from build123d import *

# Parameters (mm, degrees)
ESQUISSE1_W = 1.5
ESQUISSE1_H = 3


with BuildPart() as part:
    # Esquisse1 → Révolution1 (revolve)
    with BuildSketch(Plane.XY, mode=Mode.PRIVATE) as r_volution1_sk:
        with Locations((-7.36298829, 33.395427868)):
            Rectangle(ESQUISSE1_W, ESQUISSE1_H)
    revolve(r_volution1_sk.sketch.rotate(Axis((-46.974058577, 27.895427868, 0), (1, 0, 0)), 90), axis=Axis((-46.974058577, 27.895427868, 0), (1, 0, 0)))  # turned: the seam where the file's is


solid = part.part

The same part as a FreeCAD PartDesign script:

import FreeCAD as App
import Part
import Sketcher
Q = App.Units.Quantity

doc = App.newDocument("Part")
body = doc.addObject("PartDesign::Body", "Body")

sketch1 = body.newObject("Sketcher::SketchObject", "Sketch")
sketch1.AttachmentSupport = (doc.getObject("XY_Plane"), [""])
sketch1.MapMode = "FlatFace"
sketch1.addGeometry([
    Part.LineSegment(App.Vector(-8.1, 34.9, 0), App.Vector(-8.1, 31.9, 0)),
    Part.LineSegment(App.Vector(-8.1, 31.9, 0), App.Vector(-6.6, 31.9, 0)),
    Part.LineSegment(App.Vector(-6.6, 31.9, 0), App.Vector(-6.6, 34.9, 0)),
    Part.LineSegment(App.Vector(-6.6, 34.9, 0), App.Vector(-8.1, 34.9, 0)),
], False)
sketch1.addGeometry(Part.LineSegment(App.Vector(-8.1, 27.9, 0), App.Vector(-6.6, 27.9, 0)), True)
sketch1.addConstraint([
    Sketcher.Constraint("Coincident", 0, 2, 1, 1),
    Sketcher.Constraint("Coincident", 1, 2, 2, 1),
    Sketcher.Constraint("Coincident", 2, 2, 3, 1),
    Sketcher.Constraint("Coincident", 3, 2, 0, 1),
    Sketcher.Constraint("Vertical", 0),
    Sketcher.Constraint("Horizontal", 1),
    Sketcher.Constraint("Vertical", 2),
    Sketcher.Constraint("Horizontal", 3),
    Sketcher.Constraint("Horizontal", 4),
    Sketcher.Constraint("Vertical", 3, 2, 4, 1),
    Sketcher.Constraint("Vertical", 2, 2, 4, 2),
    Sketcher.Constraint("DistanceY", 0, 2, 0, 1, Q("3 mm")),
    Sketcher.Constraint("DistanceX", 1, 1, 1, 2, Q("1.5 mm")),
    Sketcher.Constraint("DistanceY", 4, 1, 0, 2, Q("4 mm")),
    Sketcher.Constraint("DistanceX", 0, 2, -1, 1, Q("8.112988 mm")),
    Sketcher.Constraint("DistanceY", -1, 1, 0, 2, Q("31.895428 mm")),
])
revolution = body.newObject("PartDesign::Revolution", "Revolution")
revolution.Profile = sketch1
revolution.ReferenceAxis = (sketch1, ["Axis0"])
revolution.Angle = 360

doc.recompute()
